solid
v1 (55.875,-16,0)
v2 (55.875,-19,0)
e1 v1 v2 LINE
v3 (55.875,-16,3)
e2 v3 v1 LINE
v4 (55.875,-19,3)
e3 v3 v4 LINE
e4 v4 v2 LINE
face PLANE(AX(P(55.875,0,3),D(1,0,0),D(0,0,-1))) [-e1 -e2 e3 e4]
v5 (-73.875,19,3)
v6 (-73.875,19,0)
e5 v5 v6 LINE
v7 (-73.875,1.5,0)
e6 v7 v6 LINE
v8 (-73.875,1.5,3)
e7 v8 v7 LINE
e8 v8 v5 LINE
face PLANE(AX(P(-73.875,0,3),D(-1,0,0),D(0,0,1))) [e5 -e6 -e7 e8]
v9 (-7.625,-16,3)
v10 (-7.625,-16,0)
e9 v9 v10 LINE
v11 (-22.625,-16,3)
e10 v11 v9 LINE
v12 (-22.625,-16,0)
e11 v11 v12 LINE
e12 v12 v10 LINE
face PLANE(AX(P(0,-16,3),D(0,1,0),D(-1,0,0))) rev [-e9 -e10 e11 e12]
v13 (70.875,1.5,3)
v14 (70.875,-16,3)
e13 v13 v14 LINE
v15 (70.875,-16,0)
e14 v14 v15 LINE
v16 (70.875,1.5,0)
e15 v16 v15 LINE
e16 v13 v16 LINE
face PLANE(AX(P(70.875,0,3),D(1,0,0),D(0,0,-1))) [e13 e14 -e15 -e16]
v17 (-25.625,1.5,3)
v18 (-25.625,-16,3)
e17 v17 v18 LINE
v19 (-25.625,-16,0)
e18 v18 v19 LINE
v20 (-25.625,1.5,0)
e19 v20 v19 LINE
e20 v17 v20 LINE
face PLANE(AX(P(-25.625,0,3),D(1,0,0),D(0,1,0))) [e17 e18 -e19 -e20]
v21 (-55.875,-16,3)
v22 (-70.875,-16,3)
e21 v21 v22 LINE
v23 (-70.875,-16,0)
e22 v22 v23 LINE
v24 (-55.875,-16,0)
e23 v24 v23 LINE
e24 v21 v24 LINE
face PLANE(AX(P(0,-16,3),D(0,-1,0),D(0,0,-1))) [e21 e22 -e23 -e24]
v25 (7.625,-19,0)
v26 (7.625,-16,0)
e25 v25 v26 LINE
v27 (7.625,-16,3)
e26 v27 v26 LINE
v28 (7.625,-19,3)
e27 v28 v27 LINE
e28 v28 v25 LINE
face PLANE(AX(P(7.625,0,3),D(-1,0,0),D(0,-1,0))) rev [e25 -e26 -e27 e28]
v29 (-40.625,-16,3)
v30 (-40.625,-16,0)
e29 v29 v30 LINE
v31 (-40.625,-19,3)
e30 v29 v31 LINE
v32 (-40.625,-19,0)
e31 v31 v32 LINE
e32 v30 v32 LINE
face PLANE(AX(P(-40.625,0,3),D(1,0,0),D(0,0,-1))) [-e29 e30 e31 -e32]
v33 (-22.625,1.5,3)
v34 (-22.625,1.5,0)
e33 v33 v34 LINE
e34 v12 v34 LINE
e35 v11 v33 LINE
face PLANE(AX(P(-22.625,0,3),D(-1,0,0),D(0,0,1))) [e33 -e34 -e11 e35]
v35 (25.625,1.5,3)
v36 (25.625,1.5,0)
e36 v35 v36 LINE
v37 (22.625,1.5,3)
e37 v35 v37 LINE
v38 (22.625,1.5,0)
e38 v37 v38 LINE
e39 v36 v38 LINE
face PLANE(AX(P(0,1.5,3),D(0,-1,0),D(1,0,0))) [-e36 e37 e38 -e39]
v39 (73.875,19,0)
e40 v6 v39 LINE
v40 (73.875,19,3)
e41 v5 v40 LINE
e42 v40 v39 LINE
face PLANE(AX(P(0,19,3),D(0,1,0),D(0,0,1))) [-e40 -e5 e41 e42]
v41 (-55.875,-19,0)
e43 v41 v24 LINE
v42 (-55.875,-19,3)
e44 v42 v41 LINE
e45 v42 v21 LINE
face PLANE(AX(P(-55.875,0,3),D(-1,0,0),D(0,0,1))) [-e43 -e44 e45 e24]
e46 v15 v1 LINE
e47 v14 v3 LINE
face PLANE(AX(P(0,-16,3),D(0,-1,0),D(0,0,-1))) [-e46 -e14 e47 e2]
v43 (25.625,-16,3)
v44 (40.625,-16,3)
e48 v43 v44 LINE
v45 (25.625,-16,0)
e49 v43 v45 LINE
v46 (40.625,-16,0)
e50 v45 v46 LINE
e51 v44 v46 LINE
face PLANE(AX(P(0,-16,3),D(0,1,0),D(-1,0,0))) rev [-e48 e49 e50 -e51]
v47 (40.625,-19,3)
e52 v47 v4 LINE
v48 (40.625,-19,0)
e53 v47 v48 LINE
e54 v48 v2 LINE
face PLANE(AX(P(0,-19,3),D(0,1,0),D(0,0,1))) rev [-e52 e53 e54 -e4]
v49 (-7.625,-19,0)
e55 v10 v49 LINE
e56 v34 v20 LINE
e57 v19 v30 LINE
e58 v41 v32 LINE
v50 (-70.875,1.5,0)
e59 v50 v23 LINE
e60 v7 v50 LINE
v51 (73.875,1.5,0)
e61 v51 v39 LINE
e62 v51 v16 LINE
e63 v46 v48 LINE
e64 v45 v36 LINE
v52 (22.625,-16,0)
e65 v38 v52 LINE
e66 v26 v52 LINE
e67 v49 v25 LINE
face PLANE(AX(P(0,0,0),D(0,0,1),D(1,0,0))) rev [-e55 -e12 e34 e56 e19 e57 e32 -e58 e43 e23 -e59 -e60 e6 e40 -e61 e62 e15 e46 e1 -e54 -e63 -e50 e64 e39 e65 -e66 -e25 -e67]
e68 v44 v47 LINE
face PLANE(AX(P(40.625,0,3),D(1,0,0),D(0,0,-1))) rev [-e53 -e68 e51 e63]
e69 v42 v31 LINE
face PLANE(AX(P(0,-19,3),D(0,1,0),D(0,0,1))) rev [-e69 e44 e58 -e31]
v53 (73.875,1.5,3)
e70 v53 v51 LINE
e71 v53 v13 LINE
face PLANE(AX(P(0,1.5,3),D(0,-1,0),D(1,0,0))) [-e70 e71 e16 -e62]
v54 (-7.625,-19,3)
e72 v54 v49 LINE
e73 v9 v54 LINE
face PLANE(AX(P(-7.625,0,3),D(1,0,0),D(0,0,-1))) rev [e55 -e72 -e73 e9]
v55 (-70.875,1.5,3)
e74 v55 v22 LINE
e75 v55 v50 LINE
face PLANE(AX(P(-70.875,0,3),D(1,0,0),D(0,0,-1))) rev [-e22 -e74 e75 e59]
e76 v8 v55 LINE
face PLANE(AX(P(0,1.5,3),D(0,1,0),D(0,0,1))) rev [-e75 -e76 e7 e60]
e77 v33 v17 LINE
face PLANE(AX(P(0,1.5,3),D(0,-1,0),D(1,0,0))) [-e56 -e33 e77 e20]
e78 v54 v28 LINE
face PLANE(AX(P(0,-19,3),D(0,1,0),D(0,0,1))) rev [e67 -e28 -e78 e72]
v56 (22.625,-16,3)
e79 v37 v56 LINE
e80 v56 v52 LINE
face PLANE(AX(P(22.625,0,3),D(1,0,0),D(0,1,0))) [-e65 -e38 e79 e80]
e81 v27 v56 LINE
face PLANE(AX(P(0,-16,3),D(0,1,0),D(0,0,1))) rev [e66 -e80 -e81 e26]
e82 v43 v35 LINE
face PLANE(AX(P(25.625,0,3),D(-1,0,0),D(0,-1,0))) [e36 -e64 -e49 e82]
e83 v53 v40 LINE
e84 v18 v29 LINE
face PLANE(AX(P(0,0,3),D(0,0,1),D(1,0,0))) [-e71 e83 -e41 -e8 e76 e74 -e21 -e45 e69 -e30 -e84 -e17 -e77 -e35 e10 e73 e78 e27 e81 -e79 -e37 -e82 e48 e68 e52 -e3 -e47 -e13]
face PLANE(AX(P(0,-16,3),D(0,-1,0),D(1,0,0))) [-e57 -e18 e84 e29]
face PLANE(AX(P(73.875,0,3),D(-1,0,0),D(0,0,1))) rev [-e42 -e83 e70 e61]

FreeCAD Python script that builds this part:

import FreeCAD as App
import Part
import Sketcher

doc = App.newDocument("Part")
body = doc.addObject("PartDesign::Body", "Body")

# Sketch on XY plane
sketch1 = body.newObject("Sketcher::SketchObject", "Sketch")
sketch1.AttachmentSupport = (doc.getObject("XY_Plane"), [""])
sketch1.MapMode = "FlatFace"
sketch1.addGeometry([
    Part.LineSegment(App.Vector(70.9, 1.5, 0), App.Vector(73.9, 1.5, 0)),  # 0
    Part.LineSegment(App.Vector(73.9, 1.5, 0), App.Vector(73.9, 19, 0)),  # 1
    Part.LineSegment(App.Vector(73.9, 19, 0), App.Vector(-73.9, 19, 0)),  # 2
    Part.LineSegment(App.Vector(-73.9, 19, 0), App.Vector(-73.9, 1.5, 0)),  # 3
    Part.LineSegment(App.Vector(-73.9, 1.5, 0), App.Vector(-70.9, 1.5, 0)),  # 4
    Part.LineSegment(App.Vector(-70.9, 1.5, 0), App.Vector(-70.9, -16, 0)),  # 5
    Part.LineSegment(App.Vector(-70.9, -16, 0), App.Vector(-55.9, -16, 0)),  # 6
    Part.LineSegment(App.Vector(-55.9, -16, 0), App.Vector(-55.9, -19, 0)),  # 7
    Part.LineSegment(App.Vector(-55.9, -19, 0), App.Vector(-40.6, -19, 0)),  # 8
    Part.LineSegment(App.Vector(-40.6, -19, 0), App.Vector(-40.6, -16, 0)),  # 9
    Part.LineSegment(App.Vector(-40.6, -16, 0), App.Vector(-25.6, -16, 0)),  # 10
    Part.LineSegment(App.Vector(-25.6, -16, 0), App.Vector(-25.6, 1.5, 0)),  # 11
    Part.LineSegment(App.Vector(-25.6, 1.5, 0), App.Vector(-22.6, 1.5, 0)),  # 12
    Part.LineSegment(App.Vector(-22.6, 1.5, 0), App.Vector(-22.6, -16, 0)),  # 13
    Part.LineSegment(App.Vector(-22.6, -16, 0), App.Vector(-7.6, -16, 0)),  # 14
    Part.LineSegment(App.Vector(-7.6, -16, 0), App.Vector(-7.6, -19, 0)),  # 15
    Part.LineSegment(App.Vector(-7.6, -19, 0), App.Vector(7.6, -19, 0)),  # 16
    Part.LineSegment(App.Vector(7.6, -19, 0), App.Vector(7.6, -16, 0)),  # 17
    Part.LineSegment(App.Vector(7.6, -16, 0), App.Vector(22.6, -16, 0)),  # 18
    Part.LineSegment(App.Vector(22.6, -16, 0), App.Vector(22.6, 1.5, 0)),  # 19
    Part.LineSegment(App.Vector(22.6, 1.5, 0), App.Vector(25.6, 1.5, 0)),  # 20
    Part.LineSegment(App.Vector(25.6, 1.5, 0), App.Vector(25.6, -16, 0)),  # 21
    Part.LineSegment(App.Vector(25.6, -16, 0), App.Vector(40.6, -16, 0)),  # 22
    Part.LineSegment(App.Vector(40.6, -16, 0), App.Vector(40.6, -19, 0)),  # 23
    Part.LineSegment(App.Vector(40.6, -19, 0), App.Vector(55.9, -19, 0)),  # 24
    Part.LineSegment(App.Vector(55.9, -19, 0), App.Vector(55.9, -16, 0)),  # 25
    Part.LineSegment(App.Vector(55.9, -16, 0), App.Vector(70.9, -16, 0)),  # 26
    Part.LineSegment(App.Vector(70.9, -16, 0), App.Vector(70.9, 1.5, 0)),  # 27
], False)
sketch1.addConstraint([
    Sketcher.Constraint("Coincident", 0, 2, 1, 1),
    Sketcher.Constraint("Coincident", 1, 2, 2, 1),
    Sketcher.Constraint("Coincident", 2, 2, 3, 1),
    Sketcher.Constraint("Coincident", 3, 2, 4, 1),
    Sketcher.Constraint("Coincident", 4, 2, 5, 1),
    Sketcher.Constraint("Coincident", 5, 2, 6, 1),
    Sketcher.Constraint("Coincident", 6, 2, 7, 1),
    Sketcher.Constraint("Coincident", 7, 2, 8, 1),
    Sketcher.Constraint("Coincident", 8, 2, 9, 1),
    Sketcher.Constraint("Coincident", 9, 2, 10, 1),
    Sketcher.Constraint("Coincident", 10, 2, 11, 1),
    Sketcher.Constraint("Coincident", 11, 2, 12, 1),
    Sketcher.Constraint("Coincident", 12, 2, 13, 1),
    Sketcher.Constraint("Coincident", 13, 2, 14, 1),
    Sketcher.Constraint("Coincident", 14, 2, 15, 1),
    Sketcher.Constraint("Coincident", 15, 2, 16, 1),
    Sketcher.Constraint("Coincident", 16, 2, 17, 1),
    Sketcher.Constraint("Coincident", 17, 2, 18, 1),
    Sketcher.Constraint("Coincident", 18, 2, 19, 1),
    Sketcher.Constraint("Coincident", 19, 2, 20, 1),
    Sketcher.Constraint("Coincident", 20, 2, 21, 1),
    Sketcher.Constraint("Coincident", 21, 2, 22, 1),
    Sketcher.Constraint("Coincident", 22, 2, 23, 1),
    Sketcher.Constraint("Coincident", 23, 2, 24, 1),
    Sketcher.Constraint("Coincident", 24, 2, 25, 1),
    Sketcher.Constraint("Coincident", 25, 2, 26, 1),
    Sketcher.Constraint("Coincident", 26, 2, 27, 1),
    Sketcher.Constraint("Coincident", 27, 2, 0, 1),
    Sketcher.Constraint("Horizontal", 0),
    Sketcher.Constraint("Vertical", 1),
    Sketcher.Constraint("Horizontal", 2),
    Sketcher.Constraint("Vertical", 3),
    Sketcher.Constraint("Horizontal", 4),
    Sketcher.Constraint("Vertical", 5),
    Sketcher.Constraint("Horizontal", 6),
    Sketcher.Constraint("Vertical", 7),
    Sketcher.Constraint("Horizontal", 8),
    Sketcher.Constraint("Vertical", 9),
    Sketcher.Constraint("Horizontal", 10),
    Sketcher.Constraint("Vertical", 11),
    Sketcher.Constraint("Horizontal", 12),
    Sketcher.Constraint("Vertical", 13),
    Sketcher.Constraint("Horizontal", 14),
    Sketcher.Constraint("Vertical", 15),
    Sketcher.Constraint("Horizontal", 16),
    Sketcher.Constraint("Vertical", 17),
    Sketcher.Constraint("Horizontal", 18),
    Sketcher.Constraint("Vertical", 19),
    Sketcher.Constraint("Horizontal", 20),
    Sketcher.Constraint("Vertical", 21),
    Sketcher.Constraint("Horizontal", 22),
    Sketcher.Constraint("Vertical", 23),
    Sketcher.Constraint("Horizontal", 24),
    Sketcher.Constraint("Vertical", 25),
    Sketcher.Constraint("Horizontal", 26),
    Sketcher.Constraint("Vertical", 27),
    Sketcher.Constraint("Symmetric", 0, 2, 3, 2, -2),
    Sketcher.Constraint("Symmetric", 14, 2, 17, 2, -2),
    Sketcher.Constraint("Symmetric", 12, 2, 19, 2, -2),
    Sketcher.Constraint("Symmetric", 10, 2, 21, 2, -2),
    Sketcher.Constraint("Symmetric", 8, 2, 23, 2, -2),
    Sketcher.Constraint("Symmetric", 6, 2, 25, 2, -2),
    Sketcher.Constraint("Horizontal", 6, 2, 9, 2),
    Sketcher.Constraint("Horizontal", 4, 2, 11, 2),
    Sketcher.Constraint("Horizontal", 10, 2, 13, 2),
    Sketcher.Constraint("Horizontal", 8, 2, 15, 2),
    Sketcher.Constraint("Equal", 0, 4),
    Sketcher.Constraint("Equal", 6, 10),
    Sketcher.Constraint("Equal", 4, 12),
    Sketcher.Constraint("Equal", 10, 14),
    Sketcher.Constraint("Equal", 8, 16),
    Sketcher.Constraint("Equal", 3, 5),
    Sketcher.Constraint("Equal", 20, 7),
    Sketcher.Constraint("DistanceX", 0, 1, 0, 2, 3.0),
    Sketcher.Constraint("DistanceX", 6, 1, 6, 2, 15.0),
    Sketcher.Constraint("DistanceY", 1, 1, 1, 2, 17.5),
    Sketcher.Constraint("DistanceY", -1, 1, 1, 2, 19.0),
    Sketcher.Constraint("DistanceX", 2, 2, 2, 1, 147.75),
])
pad1 = body.newObject("PartDesign::Pad", "Pad")
pad1.Profile = sketch1
pad1.Length = 3

doc.recompute()
